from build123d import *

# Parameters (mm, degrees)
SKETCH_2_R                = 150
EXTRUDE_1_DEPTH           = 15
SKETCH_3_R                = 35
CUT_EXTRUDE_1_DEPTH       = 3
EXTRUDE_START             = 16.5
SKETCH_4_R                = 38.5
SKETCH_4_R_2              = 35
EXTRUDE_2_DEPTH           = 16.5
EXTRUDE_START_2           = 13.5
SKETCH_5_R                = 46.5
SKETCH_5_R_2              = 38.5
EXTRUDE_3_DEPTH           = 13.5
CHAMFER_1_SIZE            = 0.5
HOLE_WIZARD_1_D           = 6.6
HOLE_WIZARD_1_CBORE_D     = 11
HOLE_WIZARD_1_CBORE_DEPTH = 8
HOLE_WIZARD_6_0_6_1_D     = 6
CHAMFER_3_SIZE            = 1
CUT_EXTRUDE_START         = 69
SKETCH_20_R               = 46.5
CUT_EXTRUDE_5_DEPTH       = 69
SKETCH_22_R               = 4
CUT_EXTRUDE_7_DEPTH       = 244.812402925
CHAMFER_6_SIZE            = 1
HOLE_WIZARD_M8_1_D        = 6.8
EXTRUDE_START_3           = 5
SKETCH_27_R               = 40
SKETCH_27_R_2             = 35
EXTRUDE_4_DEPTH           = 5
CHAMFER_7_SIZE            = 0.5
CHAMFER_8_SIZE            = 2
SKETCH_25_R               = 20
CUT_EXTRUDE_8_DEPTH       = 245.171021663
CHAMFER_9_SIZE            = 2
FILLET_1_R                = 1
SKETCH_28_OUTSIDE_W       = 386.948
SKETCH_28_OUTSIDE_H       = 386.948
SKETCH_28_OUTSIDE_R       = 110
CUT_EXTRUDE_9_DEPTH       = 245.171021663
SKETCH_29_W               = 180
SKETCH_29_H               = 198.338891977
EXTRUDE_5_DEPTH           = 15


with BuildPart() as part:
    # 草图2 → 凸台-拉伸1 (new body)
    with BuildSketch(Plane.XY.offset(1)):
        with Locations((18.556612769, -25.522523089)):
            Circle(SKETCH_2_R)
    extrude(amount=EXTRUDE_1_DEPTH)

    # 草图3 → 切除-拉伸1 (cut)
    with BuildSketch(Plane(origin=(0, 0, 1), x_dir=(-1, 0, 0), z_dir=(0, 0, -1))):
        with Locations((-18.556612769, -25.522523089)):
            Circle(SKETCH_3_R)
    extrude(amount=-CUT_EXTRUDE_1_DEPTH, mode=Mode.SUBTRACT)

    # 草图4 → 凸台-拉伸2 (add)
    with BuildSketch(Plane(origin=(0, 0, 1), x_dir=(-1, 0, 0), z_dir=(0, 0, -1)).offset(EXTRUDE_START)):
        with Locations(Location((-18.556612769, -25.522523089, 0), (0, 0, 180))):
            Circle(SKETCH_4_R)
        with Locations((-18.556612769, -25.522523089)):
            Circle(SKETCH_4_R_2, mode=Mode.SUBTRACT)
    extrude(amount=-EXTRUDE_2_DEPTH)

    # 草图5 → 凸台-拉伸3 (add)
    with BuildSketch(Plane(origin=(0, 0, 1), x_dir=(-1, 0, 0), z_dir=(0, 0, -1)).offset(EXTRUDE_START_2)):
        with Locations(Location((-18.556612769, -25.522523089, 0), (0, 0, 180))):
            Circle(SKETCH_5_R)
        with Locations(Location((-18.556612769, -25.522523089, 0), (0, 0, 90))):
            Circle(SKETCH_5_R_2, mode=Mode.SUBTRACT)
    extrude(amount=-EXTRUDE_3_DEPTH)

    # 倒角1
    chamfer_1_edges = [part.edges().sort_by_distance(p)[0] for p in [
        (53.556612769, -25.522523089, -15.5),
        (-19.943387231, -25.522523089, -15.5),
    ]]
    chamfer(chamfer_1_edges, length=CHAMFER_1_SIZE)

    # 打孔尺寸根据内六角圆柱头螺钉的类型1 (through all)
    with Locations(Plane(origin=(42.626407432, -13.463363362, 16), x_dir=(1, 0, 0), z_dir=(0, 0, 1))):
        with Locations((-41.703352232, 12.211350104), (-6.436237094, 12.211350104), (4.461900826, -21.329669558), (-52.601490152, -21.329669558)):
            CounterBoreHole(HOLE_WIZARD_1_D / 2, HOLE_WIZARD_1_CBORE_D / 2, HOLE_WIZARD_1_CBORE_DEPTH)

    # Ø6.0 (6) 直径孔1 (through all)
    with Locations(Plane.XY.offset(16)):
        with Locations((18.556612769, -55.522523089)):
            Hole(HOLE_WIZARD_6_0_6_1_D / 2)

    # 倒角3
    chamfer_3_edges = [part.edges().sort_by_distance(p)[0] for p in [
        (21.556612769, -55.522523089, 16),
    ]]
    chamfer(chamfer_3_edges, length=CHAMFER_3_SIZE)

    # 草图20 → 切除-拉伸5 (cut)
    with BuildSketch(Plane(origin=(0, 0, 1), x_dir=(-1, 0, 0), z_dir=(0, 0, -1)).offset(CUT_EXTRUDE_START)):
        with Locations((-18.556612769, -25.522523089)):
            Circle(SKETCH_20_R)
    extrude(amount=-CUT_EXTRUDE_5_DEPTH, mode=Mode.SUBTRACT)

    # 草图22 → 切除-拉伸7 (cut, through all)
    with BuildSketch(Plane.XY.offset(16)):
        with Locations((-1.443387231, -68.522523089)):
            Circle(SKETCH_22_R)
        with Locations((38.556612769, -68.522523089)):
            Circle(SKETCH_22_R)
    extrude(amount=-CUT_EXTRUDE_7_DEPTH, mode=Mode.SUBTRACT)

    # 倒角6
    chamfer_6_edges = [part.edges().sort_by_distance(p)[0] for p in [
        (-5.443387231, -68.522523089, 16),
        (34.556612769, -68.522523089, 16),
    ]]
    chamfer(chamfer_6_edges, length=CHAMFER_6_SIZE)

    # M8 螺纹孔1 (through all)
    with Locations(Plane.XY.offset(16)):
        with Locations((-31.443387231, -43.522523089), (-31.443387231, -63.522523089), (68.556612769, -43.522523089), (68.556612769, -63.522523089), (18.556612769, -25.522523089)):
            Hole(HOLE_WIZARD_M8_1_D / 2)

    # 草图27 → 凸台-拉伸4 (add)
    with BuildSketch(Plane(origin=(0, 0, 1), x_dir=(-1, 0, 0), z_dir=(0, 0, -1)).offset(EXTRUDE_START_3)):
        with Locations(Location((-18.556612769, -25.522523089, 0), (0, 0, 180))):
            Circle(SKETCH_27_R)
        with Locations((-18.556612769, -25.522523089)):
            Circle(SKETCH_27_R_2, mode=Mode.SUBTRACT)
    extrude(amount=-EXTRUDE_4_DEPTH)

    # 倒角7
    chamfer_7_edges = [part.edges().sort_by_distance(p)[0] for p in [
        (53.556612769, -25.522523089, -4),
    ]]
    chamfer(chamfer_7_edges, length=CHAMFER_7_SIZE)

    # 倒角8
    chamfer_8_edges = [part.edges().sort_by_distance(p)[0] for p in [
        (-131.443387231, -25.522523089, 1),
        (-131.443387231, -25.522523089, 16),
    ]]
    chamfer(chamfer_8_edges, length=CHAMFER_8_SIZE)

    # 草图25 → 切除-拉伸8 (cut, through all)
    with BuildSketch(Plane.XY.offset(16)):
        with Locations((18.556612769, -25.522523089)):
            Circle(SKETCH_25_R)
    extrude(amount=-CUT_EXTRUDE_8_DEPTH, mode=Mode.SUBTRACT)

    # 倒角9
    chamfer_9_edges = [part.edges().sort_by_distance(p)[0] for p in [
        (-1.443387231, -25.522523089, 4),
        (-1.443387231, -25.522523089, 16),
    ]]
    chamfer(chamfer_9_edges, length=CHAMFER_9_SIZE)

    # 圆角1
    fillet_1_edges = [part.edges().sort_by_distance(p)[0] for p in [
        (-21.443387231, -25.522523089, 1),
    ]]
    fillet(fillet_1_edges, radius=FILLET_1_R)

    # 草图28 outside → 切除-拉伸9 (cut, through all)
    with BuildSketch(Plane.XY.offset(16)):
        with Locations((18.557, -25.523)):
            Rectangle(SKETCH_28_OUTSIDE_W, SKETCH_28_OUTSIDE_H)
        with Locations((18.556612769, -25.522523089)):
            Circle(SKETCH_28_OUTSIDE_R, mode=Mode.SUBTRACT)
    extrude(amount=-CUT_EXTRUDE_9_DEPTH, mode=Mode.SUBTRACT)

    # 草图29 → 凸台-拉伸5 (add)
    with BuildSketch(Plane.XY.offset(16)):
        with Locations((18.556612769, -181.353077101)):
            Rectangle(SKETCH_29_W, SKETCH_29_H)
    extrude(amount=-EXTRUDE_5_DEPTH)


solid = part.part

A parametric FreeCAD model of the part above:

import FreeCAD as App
import Part
import Sketcher
from FreeCAD import Vector
Q = App.Units.Quantity


def edges_at(feature, points):
    """Names of the edges that pass closest to the given points."""
    edges = feature.Shape.Edges
    near = lambda p: min(range(len(edges)), key=lambda i: edges[i].distToShape(Part.Vertex(*p))[0])
    return sorted({f"Edge{near(p) + 1}" for p in points})


def add_polygon(sketch, points):
    """Adds a closed chain of lines whose ends are joined by coincident constraints."""
    first, n = sketch.GeometryCount, len(points)
    for a, b in zip(points, points[1:] + points[:1]):
        sketch.addGeometry(Part.LineSegment(App.Vector(*a, 0), App.Vector(*b, 0)), False)
    for i in range(n):
        sketch.addConstraint(Sketcher.Constraint("Coincident", first + i, 2, first + (i + 1) % n, 1))

doc = App.newDocument("Part")
params = doc.addObject("Spreadsheet::Sheet", "Params")
for row, (alias, value) in enumerate([
    ("sketch1_diameter", "300 mm"),
    ("pad1_length", "15 mm"),
    ("sketch2_diameter", "70 mm"),
    ("pocket1_length", "3 mm"),
    ("sketch3_diameter", "77 mm"),
    ("sketch3_diameter2", "70 mm"),
    ("pad2_length", "16.5 mm"),
    ("sketch4_diameter", "93 mm"),
    ("sketch4_diameter2", "77 mm"),
    ("pad3_length", "13.5 mm"),
    ("chamfer_size", "0.5 mm"),
    ("sketch5_diameter", "6.6 mm"),
    ("hole_diameter", "6.6 mm"),
    ("hole_cbore_diameter", "11 mm"),
    ("hole_cbore_depth", "8 mm"),
    ("sketch6_diameter", "6 mm"),
    ("hole2_diameter", "6 mm"),
    ("chamfer2_size", "1 mm"),
    ("sketch7_diameter", "93 mm"),
    ("pocket2_length", "69 mm"),
    ("sketch8_diameter", "8 mm"),
    ("chamfer3_size", "1 mm"),
    ("sketch9_diameter", "6.8 mm"),
    ("hole3_diameter", "6.8 mm"),
    ("sketch10_diameter", "80 mm"),
    ("sketch10_diameter2", "70 mm"),
    ("pad4_length", "5 mm"),
    ("chamfer4_size", "0.5 mm"),
    ("chamfer5_size", "2 mm"),
    ("sketch11_diameter", "40 mm"),
    ("chamfer6_size", "2 mm"),
    ("fillet_radius", "1 mm"),
    ("sketch12_diameter", "220 mm"),
    ("sketch13_width", "180 mm"),
    ("pad5_length", "15 mm"),
], start=1):
    params.set(f"A{row}", alias)
    params.set(f"B{row}", "=" + value)
    params.setAlias(f"B{row}", alias)

body = doc.addObject("PartDesign::Body", "Body")

# Sketch on XY plane
sketch1 = body.newObject("Sketcher::SketchObject", "Sketch")
sketch1.AttachmentSupport = (doc.getObject("XY_Plane"), [""])
sketch1.MapMode = "FlatFace"
sketch1.AttachmentOffset = App.Placement(Vector(0, 0, 1), App.Rotation())
sketch1.addGeometry(Part.Circle(Vector(19, -26, 0), Vector(0, 0, 1), 150), False)
sketch1.addConstraint([
    Sketcher.Constraint("Diameter", 0, Q("300 mm")),
    Sketcher.Constraint("DistanceX", -1, 1, 0, 3, Q("18.556613 mm")),
    Sketcher.Constraint("DistanceY", 0, 3, -1, 1, Q("25.522523 mm")),
])
sketch1.setExpression("Constraints[0]", "Params.sketch1_diameter")
pad1 = body.newObject("PartDesign::Pad", "Pad")
pad1.Profile = sketch1
pad1.setExpression("Length", "Params.pad1_length")

# Sketch on XY plane
sketch2 = body.newObject("Sketcher::SketchObject", "Sketch001")
sketch2.AttachmentSupport = (doc.getObject("XY_Plane"), [""])
sketch2.MapMode = "FlatFace"
sketch2.AttachmentOffset = App.Placement(Vector(0, 0, 1), App.Rotation())
sketch2.addGeometry(Part.Circle(Vector(19, -26, 0), Vector(0, 0, 1), 35), False)
sketch2.addConstraint([
    Sketcher.Constraint("Diameter", 0, Q("70 mm")),
    Sketcher.Constraint("DistanceX", -1, 1, 0, 3, Q("18.556613 mm")),
    Sketcher.Constraint("DistanceY", 0, 3, -1, 1, Q("25.522523 mm")),
])
sketch2.setExpression("Constraints[0]", "Params.sketch2_diameter")
pocket1 = body.newObject("PartDesign::Pocket", "Pocket")
pocket1.Profile = sketch2
pocket1.setExpression("Length", "Params.pocket1_length")
pocket1.Reversed = True

# Sketch on XY plane
sketch3 = body.newObject("Sketcher::SketchObject", "Sketch002")
sketch3.AttachmentSupport = (doc.getObject("XY_Plane"), [""])
sketch3.MapMode = "FlatFace"
sketch3.AttachmentOffset = App.Placement(Vector(0, 0, -15.5), App.Rotation())
sketch3.addGeometry([
    Part.Circle(Vector(19, -26, 0), Vector(0, 0, 1), 38),
    Part.Circle(Vector(19, -26, 0), Vector(0, 0, 1), 35),
], False)
sketch3.addConstraint([
    Sketcher.Constraint("Coincident", 1, 3, 0, 3),
    Sketcher.Constraint("Diameter", 0, Q("77 mm")),
    Sketcher.Constraint("Diameter", 1, Q("70 mm")),
    Sketcher.Constraint("DistanceX", -1, 1, 0, 3, Q("18.556613 mm")),
    Sketcher.Constraint("DistanceY", 0, 3, -1, 1, Q("25.522523 mm")),
])
sketch3.setExpression("Constraints[1]", "Params.sketch3_diameter")
sketch3.setExpression("Constraints[2]", "Params.sketch3_diameter2")
pad2 = body.newObject("PartDesign::Pad", "Pad001")
pad2.Profile = sketch3
pad2.setExpression("Length", "Params.pad2_length")

# Sketch on XY plane
sketch4 = body.newObject("Sketcher::SketchObject", "Sketch003")
sketch4.AttachmentSupport = (doc.getObject("XY_Plane"), [""])
sketch4.MapMode = "FlatFace"
sketch4.AttachmentOffset = App.Placement(Vector(0, 0, -12.5), App.Rotation())
sketch4.addGeometry([
    Part.Circle(Vector(19, -26, 0), Vector(0, 0, 1), 46),
    Part.Circle(Vector(19, -26, 0), Vector(0, 0, 1), 38),
], False)
sketch4.addConstraint([
    Sketcher.Constraint("Coincident", 1, 3, 0, 3),
    Sketcher.Constraint("Diameter", 0, Q("93 mm")),
    Sketcher.Constraint("Diameter", 1, Q("77 mm")),
    Sketcher.Constraint("DistanceX", -1, 1, 0, 3, Q("18.556613 mm")),
    Sketcher.Constraint("DistanceY", 0, 3, -1, 1, Q("25.522523 mm")),
])
sketch4.setExpression("Constraints[1]", "Params.sketch4_diameter")
sketch4.setExpression("Constraints[2]", "Params.sketch4_diameter2")
pad3 = body.newObject("PartDesign::Pad", "Pad002")
pad3.Profile = sketch4
pad3.setExpression("Length", "Params.pad3_length")
doc.recompute()

chamfer = body.newObject("PartDesign::Chamfer", "Chamfer")
chamfer.Base = (pad3, edges_at(pad3, [(53.557, -25.523, -15.5), (-19.943, -25.523, -15.5)]))
chamfer.setExpression("Size", "Params.chamfer_size")

# Sketch on XY plane
sketch5 = body.newObject("Sketcher::SketchObject", "Sketch004")
sketch5.AttachmentSupport = (doc.getObject("XY_Plane"), [""])
sketch5.MapMode = "FlatFace"
sketch5.AttachmentOffset = App.Placement(Vector(0, 0, 16), App.Rotation())
sketch5.addGeometry([
    Part.Circle(Vector(0.9, -1.3, 0), Vector(0, 0, 1), 3.3),
    Part.Circle(Vector(36.2, -1.3, 0), Vector(0, 0, 1), 3.3),
    Part.Circle(Vector(47.1, -34.8, 0), Vector(0, 0, 1), 3.3),
    Part.Circle(Vector(-10, -34.8, 0), Vector(0, 0, 1), 3.3),
], False)
sketch5.addConstraint([
    Sketcher.Constraint("Equal", 0, 1),
    Sketcher.Constraint("Equal", 1, 2),
    Sketcher.Constraint("Equal", 2, 3),
    Sketcher.Constraint("Horizontal", 0, 3, 1, 3),
    Sketcher.Constraint("Horizontal", 2, 3, 3, 3),
    Sketcher.Constraint("Diameter", 0, Q("6.6 mm")),
    Sketcher.Constraint("DistanceX", -1, 1, 1, 3, Q("36.19017 mm")),
    Sketcher.Constraint("DistanceX", -1, 1, 2, 3, Q("47.088308 mm")),
    Sketcher.Constraint("DistanceY", 2, 3, 1, 3, Q("33.54102 mm")),
    Sketcher.Constraint("DistanceX", 3, 3, 2, 3, Q("57.063391 mm")),
    Sketcher.Constraint("DistanceX", -1, 1, 0, 3, Q("0.923055 mm")),
    Sketcher.Constraint("DistanceY", 0, 3, -1, 1, Q("1.252013 mm")),
])
sketch5.setExpression("Constraints[5]", "Params.sketch5_diameter")
doc.recompute()
hole = body.newObject("PartDesign::Hole", "Hole")
hole.Profile = sketch5
hole.ThreadType = "None"
hole.setExpression("Diameter", "Params.hole_diameter")
hole.DepthType = "ThroughAll"
hole.HoleCutType = "Counterbore"
hole.setExpression("HoleCutDiameter", "Params.hole_cbore_diameter")
hole.setExpression("HoleCutDepth", "Params.hole_cbore_depth")

# Sketch on XY plane
sketch6 = body.newObject("Sketcher::SketchObject", "Sketch005")
sketch6.AttachmentSupport = (doc.getObject("XY_Plane"), [""])
sketch6.MapMode = "FlatFace"
sketch6.AttachmentOffset = App.Placement(Vector(0, 0, 16), App.Rotation())
sketch6.addGeometry(Part.Circle(Vector(18.6, -55.5, 0), Vector(0, 0, 1), 3), False)
sketch6.addConstraint([
    Sketcher.Constraint("Diameter", 0, Q("6 mm")),
    Sketcher.Constraint("DistanceX", -1, 1, 0, 3, Q("18.556613 mm")),
    Sketcher.Constraint("DistanceY", 0, 3, -1, 1, Q("55.522523 mm")),
])
sketch6.setExpression("Constraints[0]", "Params.sketch6_diameter")
doc.recompute()
hole2 = body.newObject("PartDesign::Hole", "Hole001")
hole2.Profile = sketch6
hole2.ThreadType = "None"
hole2.setExpression("Diameter", "Params.hole2_diameter")
hole2.DepthType = "ThroughAll"
doc.recompute()

chamfer2 = body.newObject("PartDesign::Chamfer", "Chamfer001")
chamfer2.Base = (hole2, edges_at(hole2, [(21.557, -55.523, 16)]))
chamfer2.setExpression("Size", "Params.chamfer2_size")

# Sketch on XY plane
sketch7 = body.newObject("Sketcher::SketchObject", "Sketch006")
sketch7.AttachmentSupport = (doc.getObject("XY_Plane"), [""])
sketch7.MapMode = "FlatFace"
sketch7.AttachmentOffset = App.Placement(Vector(0, 0, -68), App.Rotation())
sketch7.addGeometry(Part.Circle(Vector(19, -26, 0), Vector(0, 0, 1), 46), False)
sketch7.addConstraint([
    Sketcher.Constraint("Diameter", 0, Q("93 mm")),
    Sketcher.Constraint("DistanceX", -1, 1, 0, 3, Q("18.556613 mm")),
    Sketcher.Constraint("DistanceY", 0, 3, -1, 1, Q("25.522523 mm")),
])
sketch7.setExpression("Constraints[0]", "Params.sketch7_diameter")
pocket2 = body.newObject("PartDesign::Pocket", "Pocket001")
pocket2.Profile = sketch7
pocket2.setExpression("Length", "Params.pocket2_length")
pocket2.Reversed = True

# Sketch on XY plane
sketch8 = body.newObject("Sketcher::SketchObject", "Sketch007")
sketch8.AttachmentSupport = (doc.getObject("XY_Plane"), [""])
sketch8.MapMode = "FlatFace"
sketch8.AttachmentOffset = App.Placement(Vector(0, 0, 16), App.Rotation())
sketch8.addGeometry([
    Part.Circle(Vector(-1.4, -68.5, 0), Vector(0, 0, 1), 4),
    Part.Circle(Vector(38.6, -68.5, 0), Vector(0, 0, 1), 4),
], False)
sketch8.addConstraint([
    Sketcher.Constraint("Equal", 0, 1),
    Sketcher.Constraint("Horizontal", 0, 3, 1, 3),
    Sketcher.Constraint("Diameter", 0, Q("8 mm")),
    Sketcher.Constraint("DistanceX", 0, 3, 1, 3, Q("40 mm")),
    Sketcher.Constraint("DistanceX", 0, 3, -1, 1, Q("1.443387 mm")),
    Sketcher.Constraint("DistanceY", 0, 3, -1, 1, Q("68.522523 mm")),
])
sketch8.setExpression("Constraints[2]", "Params.sketch8_diameter")
pocket3 = body.newObject("PartDesign::Pocket", "Pocket002")
pocket3.Profile = sketch8
pocket3.Type = "ThroughAll"
doc.recompute()

chamfer3 = body.newObject("PartDesign::Chamfer", "Chamfer002")
chamfer3.Base = (pocket3, edges_at(pocket3, [(-5.443, -68.523, 16), (34.557, -68.523, 16)]))
chamfer3.setExpression("Size", "Params.chamfer3_size")

# Sketch on XY plane
sketch9 = body.newObject("Sketcher::SketchObject", "Sketch008")
sketch9.AttachmentSupport = (doc.getObject("XY_Plane"), [""])
sketch9.MapMode = "FlatFace"
sketch9.AttachmentOffset = App.Placement(Vector(0, 0, 16), App.Rotation())
sketch9.addGeometry([
    Part.Circle(Vector(-31.4, -43.5, 0), Vector(0, 0, 1), 3.4),  # 0
    Part.Circle(Vector(-31.4, -63.5, 0), Vector(0, 0, 1), 3.4),  # 1
    Part.Circle(Vector(68.6, -43.5, 0), Vector(0, 0, 1), 3.4),  # 2
    Part.Circle(Vector(68.6, -63.5, 0), Vector(0, 0, 1), 3.4),  # 3
    Part.Circle(Vector(18.6, -25.5, 0), Vector(0, 0, 1), 3.4),  # 4
], False)
sketch9.addConstraint([
    Sketcher.Constraint("Equal", 0, 1),
    Sketcher.Constraint("Equal", 1, 2),
    Sketcher.Constraint("Equal", 2, 3),
    Sketcher.Constraint("Equal", 3, 4),
    Sketcher.Constraint("Horizontal", 0, 3, 2, 3),
    Sketcher.Constraint("Horizontal", 1, 3, 3, 3),
    Sketcher.Constraint("Vertical", 0, 3, 1, 3),
    Sketcher.Constraint("Vertical", 2, 3, 3, 3),
    Sketcher.Constraint("Diameter", 0, Q("6.8 mm")),
    Sketcher.Constraint("DistanceY", 1, 3, 0, 3, Q("20 mm")),
    Sketcher.Constraint("DistanceX", 0, 3, 2, 3, Q("100 mm")),
    Sketcher.Constraint("DistanceX", 0, 3, 4, 3, Q("50 mm")),
    Sketcher.Constraint("DistanceY", 0, 3, 4, 3, Q("18 mm")),
    Sketcher.Constraint("DistanceX", 0, 3, -1, 1, Q("31.443387 mm")),
    Sketcher.Constraint("DistanceY", 0, 3, -1, 1, Q("43.522523 mm")),
])
sketch9.setExpression("Constraints[8]", "Params.sketch9_diameter")
doc.recompute()
hole3 = body.newObject("PartDesign::Hole", "Hole002")
hole3.Profile = sketch9
hole3.ThreadType = "None"
hole3.setExpression("Diameter", "Params.hole3_diameter")
hole3.DepthType = "ThroughAll"

# Sketch on XY plane
sketch10 = body.newObject("Sketcher::SketchObject", "Sketch009")
sketch10.AttachmentSupport = (doc.getObject("XY_Plane"), [""])
sketch10.MapMode = "FlatFace"
sketch10.AttachmentOffset = App.Placement(Vector(0, 0, -4), App.Rotation())
sketch10.addGeometry([
    Part.Circle(Vector(19, -26, 0), Vector(0, 0, 1), 40),
    Part.Circle(Vector(19, -26, 0), Vector(0, 0, 1), 35),
], False)
sketch10.addConstraint([
    Sketcher.Constraint("Coincident", 1, 3, 0, 3),
    Sketcher.Constraint("Diameter", 0, Q("80 mm")),
    Sketcher.Constraint("Diameter", 1, Q("70 mm")),
    Sketcher.Constraint("DistanceX", -1, 1, 0, 3, Q("18.556613 mm")),
    Sketcher.Constraint("DistanceY", 0, 3, -1, 1, Q("25.522523 mm")),
])
sketch10.setExpression("Constraints[1]", "Params.sketch10_diameter")
sketch10.setExpression("Constraints[2]", "Params.sketch10_diameter2")
pad4 = body.newObject("PartDesign::Pad", "Pad003")
pad4.Profile = sketch10
pad4.setExpression("Length", "Params.pad4_length")
doc.recompute()

chamfer4 = body.newObject("PartDesign::Chamfer", "Chamfer003")
chamfer4.Base = (pad4, edges_at(pad4, [(53.557, -25.523, -4)]))
chamfer4.setExpression("Size", "Params.chamfer4_size")
doc.recompute()

chamfer5 = body.newObject("PartDesign::Chamfer", "Chamfer004")
chamfer5.Base = (chamfer4, edges_at(chamfer4, [(-131.443, -25.523, 1), (-131.443, -25.523, 16)]))
chamfer5.setExpression("Size", "Params.chamfer5_size")

# Sketch on XY plane
sketch11 = body.newObject("Sketcher::SketchObject", "Sketch010")
sketch11.AttachmentSupport = (doc.getObject("XY_Plane"), [""])
sketch11.MapMode = "FlatFace"
sketch11.AttachmentOffset = App.Placement(Vector(0, 0, 16), App.Rotation())
sketch11.addGeometry(Part.Circle(Vector(19, -26, 0), Vector(0, 0, 1), 20), False)
sketch11.addConstraint([
    Sketcher.Constraint("Diameter", 0, Q("40 mm")),
    Sketcher.Constraint("DistanceX", -1, 1, 0, 3, Q("18.556613 mm")),
    Sketcher.Constraint("DistanceY", 0, 3, -1, 1, Q("25.522523 mm")),
])
sketch11.setExpression("Constraints[0]", "Params.sketch11_diameter")
pocket4 = body.newObject("PartDesign::Pocket", "Pocket003")
pocket4.Profile = sketch11
pocket4.Type = "ThroughAll"
doc.recompute()

chamfer6 = body.newObject("PartDesign::Chamfer", "Chamfer005")
chamfer6.Base = (pocket4, edges_at(pocket4, [(-1.443, -25.523, 4), (-1.443, -25.523, 16)]))
chamfer6.setExpression("Size", "Params.chamfer6_size")
doc.recompute()

fillet = body.newObject("PartDesign::Fillet", "Fillet")
fillet.Base = (chamfer6, edges_at(chamfer6, [(-21.443, -25.523, 1)]))
fillet.setExpression("Radius", "Params.fillet_radius")

# Sketch on XY plane
sketch12 = body.newObject("Sketcher::SketchObject", "Sketch011")
sketch12.AttachmentSupport = (doc.getObject("XY_Plane"), [""])
sketch12.MapMode = "FlatFace"
sketch12.AttachmentOffset = App.Placement(Vector(0, 0, 16), App.Rotation())
add_polygon(sketch12, [(-175, 168), (-175, -219), (212, -219), (212, 168)])  # lines 0-3
sketch12.addGeometry(Part.Circle(Vector(19, -26, 0), Vector(0, 0, 1), 110), False)  # 4
sketch12.addConstraint([
    Sketcher.Constraint("Vertical", 0),
    Sketcher.Constraint("Horizontal", 1),
    Sketcher.Constraint("Vertical", 2),
    Sketcher.Constraint("Horizontal", 3),
    Sketcher.Constraint("Equal", 3, 0),
    Sketcher.Constraint("Diameter", 4, Q("220 mm")),
    Sketcher.Constraint("DistanceX", 1, 1, 1, 2, Q("386.948 mm")),
    Sketcher.Constraint("DistanceX", 0, 2, -1, 1, Q("174.917 mm")),
    Sketcher.Constraint("DistanceY", 0, 2, -1, 1, Q("218.997 mm")),
    Sketcher.Constraint("DistanceX", -1, 1, 4, 3, Q("18.556613 mm")),
    Sketcher.Constraint("DistanceY", 4, 3, -1, 1, Q("25.522523 mm")),
])
sketch12.setExpression("Constraints[9]", "Params.sketch12_diameter")
pocket5 = body.newObject("PartDesign::Pocket", "Pocket004")
pocket5.Profile = sketch12
pocket5.Type = "ThroughAll"

# Sketch on XY plane
sketch13 = body.newObject("Sketcher::SketchObject", "Sketch012")
sketch13.AttachmentSupport = (doc.getObject("XY_Plane"), [""])
sketch13.MapMode = "FlatFace"
sketch13.AttachmentOffset = App.Placement(Vector(0, 0, 16), App.Rotation())
add_polygon(sketch13, [(-71, -82), (-71, -281), (109, -281), (109, -82)])  # lines 0-3
sketch13.addConstraint([
    Sketcher.Constraint("Vertical", 0),
    Sketcher.Constraint("Horizontal", 1),
    Sketcher.Constraint("Vertical", 2),
    Sketcher.Constraint("Horizontal", 3),
    Sketcher.Constraint("DistanceX", 1, 1, 1, 2, Q("180 mm")),
    Sketcher.Constraint("DistanceY", 0, 2, 0, 1, Q("198.338892 mm")),
    Sketcher.Constraint("DistanceY", 2, 2, -1, 1, Q("82.183631 mm")),
    Sketcher.Constraint("DistanceX", 0, 2, -1, 1, Q("71.443387 mm")),
])
sketch13.setExpression("Constraints[8]", "Params.sketch13_width")
pad5 = body.newObject("PartDesign::Pad", "Pad004")
pad5.Profile = sketch13
pad5.setExpression("Length", "Params.pad5_length")
pad5.Reversed = True

doc.recompute()
